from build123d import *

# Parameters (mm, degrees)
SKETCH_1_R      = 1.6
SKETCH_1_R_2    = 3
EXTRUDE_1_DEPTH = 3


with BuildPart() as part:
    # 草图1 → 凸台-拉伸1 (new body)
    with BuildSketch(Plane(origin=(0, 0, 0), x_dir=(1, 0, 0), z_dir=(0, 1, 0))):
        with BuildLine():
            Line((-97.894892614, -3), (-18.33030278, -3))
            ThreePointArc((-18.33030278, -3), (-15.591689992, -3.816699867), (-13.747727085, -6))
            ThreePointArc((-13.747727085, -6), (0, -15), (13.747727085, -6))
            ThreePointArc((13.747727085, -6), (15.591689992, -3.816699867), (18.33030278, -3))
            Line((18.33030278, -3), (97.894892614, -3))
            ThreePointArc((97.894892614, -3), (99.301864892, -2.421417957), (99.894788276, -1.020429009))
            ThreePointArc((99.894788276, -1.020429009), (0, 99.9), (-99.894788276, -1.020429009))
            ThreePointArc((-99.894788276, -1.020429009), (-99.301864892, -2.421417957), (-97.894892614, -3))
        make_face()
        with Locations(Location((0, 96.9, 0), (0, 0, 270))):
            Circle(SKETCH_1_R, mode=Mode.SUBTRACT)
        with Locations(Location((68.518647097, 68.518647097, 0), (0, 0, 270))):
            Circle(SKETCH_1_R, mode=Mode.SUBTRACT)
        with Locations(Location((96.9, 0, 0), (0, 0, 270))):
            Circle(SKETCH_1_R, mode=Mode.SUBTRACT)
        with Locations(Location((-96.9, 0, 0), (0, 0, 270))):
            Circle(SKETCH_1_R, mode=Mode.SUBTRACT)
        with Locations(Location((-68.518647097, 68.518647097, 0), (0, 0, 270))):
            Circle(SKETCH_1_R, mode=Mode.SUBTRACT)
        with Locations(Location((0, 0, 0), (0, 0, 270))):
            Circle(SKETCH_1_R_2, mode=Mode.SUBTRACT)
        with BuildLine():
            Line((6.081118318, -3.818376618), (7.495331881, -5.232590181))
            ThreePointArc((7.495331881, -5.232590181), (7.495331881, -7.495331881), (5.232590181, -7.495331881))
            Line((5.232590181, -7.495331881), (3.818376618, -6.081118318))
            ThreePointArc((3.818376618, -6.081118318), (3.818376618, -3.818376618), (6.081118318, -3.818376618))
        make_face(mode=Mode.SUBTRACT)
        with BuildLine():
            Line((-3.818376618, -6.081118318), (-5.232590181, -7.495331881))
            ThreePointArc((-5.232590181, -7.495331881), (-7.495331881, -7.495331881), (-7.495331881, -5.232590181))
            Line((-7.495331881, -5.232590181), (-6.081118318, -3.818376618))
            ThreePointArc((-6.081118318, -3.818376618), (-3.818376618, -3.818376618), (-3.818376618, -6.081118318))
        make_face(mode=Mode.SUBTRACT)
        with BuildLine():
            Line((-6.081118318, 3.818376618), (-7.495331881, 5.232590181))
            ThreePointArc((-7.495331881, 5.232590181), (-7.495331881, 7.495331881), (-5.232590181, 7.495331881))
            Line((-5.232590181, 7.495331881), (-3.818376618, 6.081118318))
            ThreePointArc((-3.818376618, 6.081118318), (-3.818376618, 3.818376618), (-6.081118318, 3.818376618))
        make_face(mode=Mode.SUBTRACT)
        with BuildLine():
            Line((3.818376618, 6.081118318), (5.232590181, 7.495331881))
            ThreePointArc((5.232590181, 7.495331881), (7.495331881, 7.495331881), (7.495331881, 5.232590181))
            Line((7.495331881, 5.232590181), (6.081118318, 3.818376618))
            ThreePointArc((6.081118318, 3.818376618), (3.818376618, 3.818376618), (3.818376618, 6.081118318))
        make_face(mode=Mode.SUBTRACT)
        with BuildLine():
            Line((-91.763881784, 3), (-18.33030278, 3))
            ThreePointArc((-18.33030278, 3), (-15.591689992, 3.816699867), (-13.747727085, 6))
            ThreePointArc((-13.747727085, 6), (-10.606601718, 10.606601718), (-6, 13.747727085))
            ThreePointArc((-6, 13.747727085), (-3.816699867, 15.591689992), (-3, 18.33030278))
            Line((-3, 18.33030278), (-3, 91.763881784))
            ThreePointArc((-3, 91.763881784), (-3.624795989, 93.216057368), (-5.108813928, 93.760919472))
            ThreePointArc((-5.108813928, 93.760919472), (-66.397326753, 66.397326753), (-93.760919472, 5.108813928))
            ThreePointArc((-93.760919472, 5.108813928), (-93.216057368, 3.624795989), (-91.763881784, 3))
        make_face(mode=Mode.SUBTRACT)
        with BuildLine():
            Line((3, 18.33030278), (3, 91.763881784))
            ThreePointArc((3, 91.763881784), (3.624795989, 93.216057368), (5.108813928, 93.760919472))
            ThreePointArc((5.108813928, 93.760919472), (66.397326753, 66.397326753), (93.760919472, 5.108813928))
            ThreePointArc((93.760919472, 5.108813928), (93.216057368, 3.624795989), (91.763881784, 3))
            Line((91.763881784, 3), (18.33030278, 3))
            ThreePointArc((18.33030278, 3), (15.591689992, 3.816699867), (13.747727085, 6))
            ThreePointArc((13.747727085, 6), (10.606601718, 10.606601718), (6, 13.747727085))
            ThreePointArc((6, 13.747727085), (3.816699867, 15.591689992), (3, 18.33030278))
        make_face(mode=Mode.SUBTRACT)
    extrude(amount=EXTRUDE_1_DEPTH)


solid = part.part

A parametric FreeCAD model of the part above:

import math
import FreeCAD as App
import Part
import Sketcher
Q = App.Units.Quantity

doc = App.newDocument("Part")
body = doc.addObject("PartDesign::Body", "Body")

# Sketch on XZ plane
sketch1 = doc.addObject("Sketcher::SketchObject", "Sketch")
body.addObject(sketch1)
sketch1.AttachmentSupport = (doc.XZ_Plane, [""])
sketch1.MapMode = "FlatFace"
sketch1.addGeometry(Part.LineSegment(App.Vector(-97.9, 3, 0), App.Vector(-18.3, 3, 0)), False)
sketch1.addGeometry(Part.ArcOfCircle(Part.Circle(App.Vector(-18.3, 8, 0), App.Vector(0, 0, 1), 5), math.radians(-90), math.radians(-24)), False)
sketch1.addGeometry(Part.ArcOfCircle(Part.Circle(App.Vector(0, 0, 0), App.Vector(0, 0, 1), 15), math.radians(24), math.radians(156)), False)
sketch1.addGeometry(Part.ArcOfCircle(Part.Circle(App.Vector(18.3, 8, 0), App.Vector(0, 0, 1), 5), math.radians(-156), math.radians(-90)), False)
sketch1.addGeometry(Part.LineSegment(App.Vector(18.3, 3, 0), App.Vector(97.9, 3, 0)), False)
sketch1.addGeometry(Part.ArcOfCircle(Part.Circle(App.Vector(97.9, 1, 0), App.Vector(0, 0, 1), 2), math.radians(1), math.radians(90)), False)
sketch1.addGeometry(Part.ArcOfCircle(Part.Circle(App.Vector(0, 0, 0), App.Vector(0, 0, 1), 99.9), math.radians(179), math.radians(361)), False)
sketch1.addGeometry(Part.ArcOfCircle(Part.Circle(App.Vector(-97.9, 1, 0), App.Vector(0, 0, 1), 2), math.radians(90), math.radians(179)), False)
sketch1.addGeometry(Part.Circle(App.Vector(-96.9, 0, 0), App.Vector(0, 0, 1), 1.6), False)
sketch1.addGeometry(Part.ArcOfCircle(Part.Circle(App.Vector(-4.9, 4.9, 0), App.Vector(0, 0, 1), 1.6), math.radians(-135), math.radians(45)), False)
sketch1.addGeometry(Part.LineSegment(App.Vector(-3.8, 6.1, 0), App.Vector(-5.2, 7.5, 0)), False)
sketch1.addGeometry(Part.ArcOfCircle(Part.Circle(App.Vector(-6.4, 6.4, 0), App.Vector(0, 0, 1), 1.6), math.radians(45), math.radians(225)), False)
sketch1.addGeometry(Part.LineSegment(App.Vector(-7.5, 5.2, 0), App.Vector(-6.1, 3.8, 0)), False)
sketch1.addGeometry(Part.Circle(App.Vector(0, 0, 0), App.Vector(0, 0, 1), 3), False)
sketch1.addGeometry(Part.ArcOfCircle(Part.Circle(App.Vector(-4.9, -4.9, 0), App.Vector(0, 0, 1), 1.6), math.radians(-45), math.radians(135)), False)
sketch1.addGeometry(Part.LineSegment(App.Vector(-6.1, -3.8, 0), App.Vector(-7.5, -5.2, 0)), False)
sketch1.addGeometry(Part.ArcOfCircle(Part.Circle(App.Vector(-6.4, -6.4, 0), App.Vector(0, 0, 1), 1.6), math.radians(135), math.radians(315)), False)
sketch1.addGeometry(Part.LineSegment(App.Vector(-5.2, -7.5, 0), App.Vector(-3.8, -6.1, 0)), False)
sketch1.addGeometry(Part.ArcOfCircle(Part.Circle(App.Vector(4.9, 4.9, 0), App.Vector(0, 0, 1), 1.6), math.radians(135), math.radians(315)), False)
sketch1.addGeometry(Part.LineSegment(App.Vector(6.1, 3.8, 0), App.Vector(7.5, 5.2, 0)), False)
sketch1.addGeometry(Part.ArcOfCircle(Part.Circle(App.Vector(6.4, 6.4, 0), App.Vector(0, 0, 1), 1.6), math.radians(-45), math.radians(135)), False)
sketch1.addGeometry(Part.LineSegment(App.Vector(5.2, 7.5, 0), App.Vector(3.8, 6.1, 0)), False)
sketch1.addGeometry(Part.ArcOfCircle(Part.Circle(App.Vector(4.9, -4.9, 0), App.Vector(0, 0, 1), 1.6), math.radians(45), math.radians(225)), False)
sketch1.addGeometry(Part.LineSegment(App.Vector(3.8, -6.1, 0), App.Vector(5.2, -7.5, 0)), False)
sketch1.addGeometry(Part.ArcOfCircle(Part.Circle(App.Vector(6.4, -6.4, 0), App.Vector(0, 0, 1), 1.6), math.radians(-135), math.radians(45)), False)
sketch1.addGeometry(Part.LineSegment(App.Vector(7.5, -5.2, 0), App.Vector(6.1, -3.8, 0)), False)
sketch1.addGeometry(Part.Circle(App.Vector(96.9, 0, 0), App.Vector(0, 0, 1), 1.6), False)
sketch1.addGeometry(Part.Circle(App.Vector(-68.5, -68.5, 0), App.Vector(0, 0, 1), 1.6), False)
sketch1.addGeometry(Part.LineSegment(App.Vector(-18.3, -3, 0), App.Vector(-91.8, -3, 0)), False)
sketch1.addGeometry(Part.ArcOfCircle(Part.Circle(App.Vector(-91.8, -5, 0), App.Vector(0, 0, 1), 2), math.radians(90), math.radians(183)), False)
sketch1.addGeometry(Part.ArcOfCircle(Part.Circle(App.Vector(0, 0, 0), App.Vector(0, 0, 1), 93.9), math.radians(-177), math.radians(-93)), False)
sketch1.addGeometry(Part.ArcOfCircle(Part.Circle(App.Vector(-5, -91.8, 0), App.Vector(0, 0, 1), 2), math.radians(-93), math.radians(0)), False)
sketch1.addGeometry(Part.LineSegment(App.Vector(-3, -91.8, 0), App.Vector(-3, -18.3, 0)), False)
sketch1.addGeometry(Part.ArcOfCircle(Part.Circle(App.Vector(-8, -18.3, 0), App.Vector(0, 0, 1), 5), math.radians(0), math.radians(66)), False)
sketch1.addGeometry(Part.ArcOfCircle(Part.Circle(App.Vector(0, 0, 0), App.Vector(0, 0, 1), 15), math.radians(-156), math.radians(-114)), False)
sketch1.addGeometry(Part.ArcOfCircle(Part.Circle(App.Vector(-18.3, -8, 0), App.Vector(0, 0, 1), 5), math.radians(24), math.radians(90)), False)
sketch1.addGeometry(Part.Circle(App.Vector(0, -96.9, 0), App.Vector(0, 0, 1), 1.6), False)
sketch1.addGeometry(Part.ArcOfCircle(Part.Circle(App.Vector(8, -18.3, 0), App.Vector(0, 0, 1), 5), math.radians(114), math.radians(180)), False)
sketch1.addGeometry(Part.LineSegment(App.Vector(3, -18.3, 0), App.Vector(3, -91.8, 0)), False)
sketch1.addGeometry(Part.ArcOfCircle(Part.Circle(App.Vector(5, -91.8, 0), App.Vector(0, 0, 1), 2), math.radians(180), math.radians(273)), False)
sketch1.addGeometry(Part.ArcOfCircle(Part.Circle(App.Vector(0, 0, 0), App.Vector(0, 0, 1), 93.9), math.radians(-87), math.radians(-3)), False)
sketch1.addGeometry(Part.ArcOfCircle(Part.Circle(App.Vector(91.8, -5, 0), App.Vector(0, 0, 1), 2), math.radians(-3), math.radians(90)), False)
sketch1.addGeometry(Part.LineSegment(App.Vector(91.8, -3, 0), App.Vector(18.3, -3, 0)), False)
sketch1.addGeometry(Part.ArcOfCircle(Part.Circle(App.Vector(18.3, -8, 0), App.Vector(0, 0, 1), 5), math.radians(90), math.radians(156)), False)
sketch1.addGeometry(Part.ArcOfCircle(Part.Circle(App.Vector(0, 0, 0), App.Vector(0, 0, 1), 15), math.radians(-66), math.radians(-24)), False)
sketch1.addGeometry(Part.Circle(App.Vector(68.5, -68.5, 0), App.Vector(0, 0, 1), 1.6), False)
sketch1.addConstraint(Sketcher.Constraint("Tangent", 0, 2, 1, 1))
sketch1.addConstraint(Sketcher.Constraint("Tangent", 1, 2, 2, 2))
sketch1.addConstraint(Sketcher.Constraint("Tangent", 2, 1, 3, 1))
sketch1.addConstraint(Sketcher.Constraint("Tangent", 3, 2, 4, 1))
sketch1.addConstraint(Sketcher.Constraint("Tangent", 4, 2, 5, 2))
sketch1.addConstraint(Sketcher.Constraint("Tangent", 5, 1, 6, 2))
sketch1.addConstraint(Sketcher.Constraint("Tangent", 6, 1, 7, 2))
sketch1.addConstraint(Sketcher.Constraint("Tangent", 7, 1, 0, 1))
sketch1.addConstraint(Sketcher.Constraint("Tangent", 9, 2, 10, 1))
sketch1.addConstraint(Sketcher.Constraint("Tangent", 10, 2, 11, 1))
sketch1.addConstraint(Sketcher.Constraint("Tangent", 11, 2, 12, 1))
sketch1.addConstraint(Sketcher.Constraint("Tangent", 12, 2, 9, 1))
sketch1.addConstraint(Sketcher.Constraint("Tangent", 14, 2, 15, 1))
sketch1.addConstraint(Sketcher.Constraint("Tangent", 15, 2, 16, 1))
sketch1.addConstraint(Sketcher.Constraint("Tangent", 16, 2, 17, 1))
sketch1.addConstraint(Sketcher.Constraint("Tangent", 17, 2, 14, 1))
sketch1.addConstraint(Sketcher.Constraint("Tangent", 18, 2, 19, 1))
sketch1.addConstraint(Sketcher.Constraint("Tangent", 19, 2, 20, 1))
sketch1.addConstraint(Sketcher.Constraint("Tangent", 20, 2, 21, 1))
sketch1.addConstraint(Sketcher.Constraint("Tangent", 21, 2, 18, 1))
sketch1.addConstraint(Sketcher.Constraint("Tangent", 22, 2, 23, 1))
sketch1.addConstraint(Sketcher.Constraint("Tangent", 23, 2, 24, 1))
sketch1.addConstraint(Sketcher.Constraint("Tangent", 24, 2, 25, 1))
sketch1.addConstraint(Sketcher.Constraint("Tangent", 25, 2, 22, 1))
sketch1.addConstraint(Sketcher.Constraint("Tangent", 28, 2, 29, 1))
sketch1.addConstraint(Sketcher.Constraint("Tangent", 29, 2, 30, 1))
sketch1.addConstraint(Sketcher.Constraint("Tangent", 30, 2, 31, 1))
sketch1.addConstraint(Sketcher.Constraint("Tangent", 31, 2, 32, 1))
sketch1.addConstraint(Sketcher.Constraint("Tangent", 32, 2, 33, 1))
sketch1.addConstraint(Sketcher.Constraint("Tangent", 33, 2, 34, 2))
sketch1.addConstraint(Sketcher.Constraint("Tangent", 34, 1, 35, 1))
sketch1.addConstraint(Sketcher.Constraint("Tangent", 35, 2, 28, 1))
sketch1.addConstraint(Sketcher.Constraint("Tangent", 37, 2, 38, 1))
sketch1.addConstraint(Sketcher.Constraint("Tangent", 38, 2, 39, 1))
sketch1.addConstraint(Sketcher.Constraint("Tangent", 39, 2, 40, 1))
sketch1.addConstraint(Sketcher.Constraint("Tangent", 40, 2, 41, 1))
sketch1.addConstraint(Sketcher.Constraint("Tangent", 41, 2, 42, 1))
sketch1.addConstraint(Sketcher.Constraint("Tangent", 42, 2, 43, 1))
sketch1.addConstraint(Sketcher.Constraint("Tangent", 43, 2, 44, 2))
sketch1.addConstraint(Sketcher.Constraint("Tangent", 44, 1, 37, 1))
sketch1.addConstraint(Sketcher.Constraint("Horizontal", 0))
sketch1.addConstraint(Sketcher.Constraint("Horizontal", 4))
sketch1.addConstraint(Sketcher.Constraint("Horizontal", 28))
sketch1.addConstraint(Sketcher.Constraint("Vertical", 32))
sketch1.addConstraint(Sketcher.Constraint("Vertical", 38))
sketch1.addConstraint(Sketcher.Constraint("Horizontal", 42))
sketch1.addConstraint(Sketcher.Constraint("Coincident", 2, 3, -1, 1))
sketch1.addConstraint(Sketcher.Constraint("Coincident", 6, 3, -1, 1))
sketch1.addConstraint(Sketcher.Constraint("Coincident", 13, 3, -1, 1))
sketch1.addConstraint(Sketcher.Constraint("Coincident", 30, 3, -1, 1))
sketch1.addConstraint(Sketcher.Constraint("Coincident", 34, 3, -1, 1))
sketch1.addConstraint(Sketcher.Constraint("Coincident", 40, 3, -1, 1))
sketch1.addConstraint(Sketcher.Constraint("Coincident", 44, 3, -1, 1))
sketch1.addConstraint(Sketcher.Constraint("Equal", 1, 3))
sketch1.addConstraint(Sketcher.Constraint("Equal", 5, 7))
sketch1.addConstraint(Sketcher.Constraint("Equal", 8, 9))
sketch1.addConstraint(Sketcher.Constraint("Equal", 9, 11))
sketch1.addConstraint(Sketcher.Constraint("Equal", 11, 14))
sketch1.addConstraint(Sketcher.Constraint("Equal", 14, 16))
sketch1.addConstraint(Sketcher.Constraint("Equal", 16, 18))
sketch1.addConstraint(Sketcher.Constraint("Equal", 18, 20))
sketch1.addConstraint(Sketcher.Constraint("Equal", 20, 22))
sketch1.addConstraint(Sketcher.Constraint("Equal", 22, 24))
sketch1.addConstraint(Sketcher.Constraint("Equal", 24, 26))
sketch1.addConstraint(Sketcher.Constraint("Equal", 26, 27))
sketch1.addConstraint(Sketcher.Constraint("Equal", 7, 29))
sketch1.addConstraint(Sketcher.Constraint("Equal", 29, 31))
sketch1.addConstraint(Sketcher.Constraint("Equal", 3, 33))
sketch1.addConstraint(Sketcher.Constraint("Equal", 2, 34))
sketch1.addConstraint(Sketcher.Constraint("Equal", 33, 35))
sketch1.addConstraint(Sketcher.Constraint("Equal", 27, 36))
sketch1.addConstraint(Sketcher.Constraint("Equal", 35, 37))
sketch1.addConstraint(Sketcher.Constraint("Equal", 31, 39))
sketch1.addConstraint(Sketcher.Constraint("Equal", 30, 40))
sketch1.addConstraint(Sketcher.Constraint("Equal", 39, 41))
sketch1.addConstraint(Sketcher.Constraint("Equal", 37, 43))
sketch1.addConstraint(Sketcher.Constraint("Equal", 34, 44))
sketch1.addConstraint(Sketcher.Constraint("Equal", 36, 45))
sketch1.addConstraint(Sketcher.Constraint("Symmetric", 14, 3, 18, 3, -1, 1))
sketch1.addConstraint(Sketcher.Constraint("Symmetric", 16, 3, 20, 3, -1, 1))
sketch1.addConstraint(Sketcher.Constraint("Symmetric", 9, 3, 22, 3, -1, 1))
sketch1.addConstraint(Sketcher.Constraint("Symmetric", 11, 3, 24, 3, -1, 1))
sketch1.addConstraint(Sketcher.Constraint("Symmetric", 8, 3, 26, 3, -1, 1))
sketch1.addConstraint(Sketcher.Constraint("Symmetric", 9, 3, 18, 3, -2))
sketch1.addConstraint(Sketcher.Constraint("Symmetric", 11, 3, 20, 3, -2))
sketch1.addConstraint(Sketcher.Constraint("Symmetric", 27, 3, 45, 3, -2))
sketch1.addConstraint(Sketcher.Constraint("PointOnObject", 8, 3, -1))
sketch1.addConstraint(Sketcher.Constraint("PointOnObject", 36, 3, -2))
sketch1.addConstraint(Sketcher.Constraint("Perpendicular", 12, 15))
sketch1.addConstraint(Sketcher.Constraint("Horizontal", 1, 3, 3, 3))
sketch1.addConstraint(Sketcher.Constraint("Horizontal", 33, 3, 37, 3))
sketch1.addConstraint(Sketcher.Constraint("Horizontal", 29, 3, 41, 3))
sketch1.addConstraint(Sketcher.Constraint("Vertical", 1, 3, 35, 3))
sketch1.addConstraint(Sketcher.Constraint("Equal", 42, 32))
sketch1.addConstraint(Sketcher.Constraint("Diameter", 13, Q("6 mm")))
sketch1.addConstraint(Sketcher.Constraint("Radius", 1, Q("5 mm")))
sketch1.addConstraint(Sketcher.Constraint("Radius", 2, Q("15 mm")))
sketch1.addConstraint(Sketcher.Constraint("Radius", 5, Q("2 mm")))
sketch1.addConstraint(Sketcher.Constraint("Diameter", 8, Q("3.2 mm")))
sketch1.addConstraint(Sketcher.Constraint("Radius", 6, Q("99.9 mm")))
sketch1.addConstraint(Sketcher.Constraint("Radius", 30, Q("93.9 mm")))
sketch1.addConstraint(Sketcher.Constraint("Distance", 10, Q("2 mm")))
sketch1.addConstraint(Sketcher.Constraint("DistanceY", -1, 1, 1, 3, Q("8 mm")))
sketch1.addConstraint(Sketcher.Constraint("DistanceX", 8, 3, -1, 1, Q("96.9 mm")))
sketch1.addConstraint(Sketcher.Constraint("DistanceY", 36, 3, -1, 1, Q("96.9 mm")))
sketch1.addConstraint(Sketcher.Constraint("DistanceX", 11, 3, -1, 1, Q("6.363961 mm")))
sketch1.addConstraint(Sketcher.Constraint("DistanceY", -1, 1, 11, 3, Q("6.363961 mm")))
sketch1.addConstraint(Sketcher.Constraint("DistanceX", 27, 3, -1, 1, Q("68.518647 mm")))
sketch1.addConstraint(Sketcher.Constraint("DistanceY", 27, 3, -1, 1, Q("68.518647 mm")))
pad1 = doc.addObject("PartDesign::Pad", "Pad")
body.addObject(pad1)
pad1.Profile = sketch1
pad1.Length = 3
pad1.Reversed = True

doc.recompute()
